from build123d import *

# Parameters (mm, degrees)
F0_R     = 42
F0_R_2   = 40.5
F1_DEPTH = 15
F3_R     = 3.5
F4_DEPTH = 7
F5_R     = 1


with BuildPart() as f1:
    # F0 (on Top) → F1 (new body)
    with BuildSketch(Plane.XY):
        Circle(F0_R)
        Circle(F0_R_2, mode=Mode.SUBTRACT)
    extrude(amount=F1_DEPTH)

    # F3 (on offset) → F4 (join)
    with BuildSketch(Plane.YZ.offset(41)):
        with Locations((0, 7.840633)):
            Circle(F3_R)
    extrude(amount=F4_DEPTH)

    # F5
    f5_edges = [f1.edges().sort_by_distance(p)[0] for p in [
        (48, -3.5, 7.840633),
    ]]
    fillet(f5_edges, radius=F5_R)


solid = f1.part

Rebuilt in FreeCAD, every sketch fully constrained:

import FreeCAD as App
import Part
import Sketcher


def edges_at(feature, points):
    """Names of the edges that pass closest to the given points."""
    edges = feature.Shape.Edges
    near = lambda p: min(range(len(edges)), key=lambda i: edges[i].distToShape(Part.Vertex(*p))[0])
    return sorted({f"Edge{near(p) + 1}" for p in points})

doc = App.newDocument("Part")
body = doc.addObject("PartDesign::Body", "Body")

# Sketch on XY plane
sketch1 = body.newObject("Sketcher::SketchObject", "Sketch")
sketch1.AttachmentSupport = (doc.getObject("XY_Plane"), [""])
sketch1.MapMode = "FlatFace"
sketch1.addGeometry(Part.Circle(App.Vector(0, 0, 0), App.Vector(0, 0, 1), 42), False)
sketch1.addGeometry(Part.Circle(App.Vector(0, 0, 0), App.Vector(0, 0, 1), 40), False)
sketch1.addConstraint(Sketcher.Constraint("Coincident", 0, 3, -1, 1))
sketch1.addConstraint(Sketcher.Constraint("Coincident", 1, 3, -1, 1))
sketch1.addConstraint(Sketcher.Constraint("Diameter", 0, 84.0))
sketch1.addConstraint(Sketcher.Constraint("Diameter", 1, 81.0))
pad1 = body.newObject("PartDesign::Pad", "Pad")
pad1.Profile = sketch1
pad1.Length = 15

# Sketch on YZ plane
sketch2 = body.newObject("Sketcher::SketchObject", "Sketch001")
sketch2.AttachmentSupport = (doc.getObject("YZ_Plane"), [""])
sketch2.MapMode = "FlatFace"
sketch2.AttachmentOffset = App.Placement(App.Vector(0, 0, 41), App.Rotation())
sketch2.addGeometry(Part.Circle(App.Vector(0, 7.8, 0), App.Vector(0, 0, 1), 3.5), False)
sketch2.addConstraint(Sketcher.Constraint("PointOnObject", 0, 3, -2))
sketch2.addConstraint(Sketcher.Constraint("Diameter", 0, 7.0))
sketch2.addConstraint(Sketcher.Constraint("DistanceY", -1, 1, 0, 3, 7.840633))
pad2 = body.newObject("PartDesign::Pad", "Pad001")
pad2.Profile = sketch2
pad2.Length = 7
doc.recompute()

fillet = body.newObject("PartDesign::Fillet", "Fillet")
fillet.Base = (pad2, edges_at(pad2, [(48, -3.5, 7.841)]))
fillet.Radius = 1

doc.recompute()
